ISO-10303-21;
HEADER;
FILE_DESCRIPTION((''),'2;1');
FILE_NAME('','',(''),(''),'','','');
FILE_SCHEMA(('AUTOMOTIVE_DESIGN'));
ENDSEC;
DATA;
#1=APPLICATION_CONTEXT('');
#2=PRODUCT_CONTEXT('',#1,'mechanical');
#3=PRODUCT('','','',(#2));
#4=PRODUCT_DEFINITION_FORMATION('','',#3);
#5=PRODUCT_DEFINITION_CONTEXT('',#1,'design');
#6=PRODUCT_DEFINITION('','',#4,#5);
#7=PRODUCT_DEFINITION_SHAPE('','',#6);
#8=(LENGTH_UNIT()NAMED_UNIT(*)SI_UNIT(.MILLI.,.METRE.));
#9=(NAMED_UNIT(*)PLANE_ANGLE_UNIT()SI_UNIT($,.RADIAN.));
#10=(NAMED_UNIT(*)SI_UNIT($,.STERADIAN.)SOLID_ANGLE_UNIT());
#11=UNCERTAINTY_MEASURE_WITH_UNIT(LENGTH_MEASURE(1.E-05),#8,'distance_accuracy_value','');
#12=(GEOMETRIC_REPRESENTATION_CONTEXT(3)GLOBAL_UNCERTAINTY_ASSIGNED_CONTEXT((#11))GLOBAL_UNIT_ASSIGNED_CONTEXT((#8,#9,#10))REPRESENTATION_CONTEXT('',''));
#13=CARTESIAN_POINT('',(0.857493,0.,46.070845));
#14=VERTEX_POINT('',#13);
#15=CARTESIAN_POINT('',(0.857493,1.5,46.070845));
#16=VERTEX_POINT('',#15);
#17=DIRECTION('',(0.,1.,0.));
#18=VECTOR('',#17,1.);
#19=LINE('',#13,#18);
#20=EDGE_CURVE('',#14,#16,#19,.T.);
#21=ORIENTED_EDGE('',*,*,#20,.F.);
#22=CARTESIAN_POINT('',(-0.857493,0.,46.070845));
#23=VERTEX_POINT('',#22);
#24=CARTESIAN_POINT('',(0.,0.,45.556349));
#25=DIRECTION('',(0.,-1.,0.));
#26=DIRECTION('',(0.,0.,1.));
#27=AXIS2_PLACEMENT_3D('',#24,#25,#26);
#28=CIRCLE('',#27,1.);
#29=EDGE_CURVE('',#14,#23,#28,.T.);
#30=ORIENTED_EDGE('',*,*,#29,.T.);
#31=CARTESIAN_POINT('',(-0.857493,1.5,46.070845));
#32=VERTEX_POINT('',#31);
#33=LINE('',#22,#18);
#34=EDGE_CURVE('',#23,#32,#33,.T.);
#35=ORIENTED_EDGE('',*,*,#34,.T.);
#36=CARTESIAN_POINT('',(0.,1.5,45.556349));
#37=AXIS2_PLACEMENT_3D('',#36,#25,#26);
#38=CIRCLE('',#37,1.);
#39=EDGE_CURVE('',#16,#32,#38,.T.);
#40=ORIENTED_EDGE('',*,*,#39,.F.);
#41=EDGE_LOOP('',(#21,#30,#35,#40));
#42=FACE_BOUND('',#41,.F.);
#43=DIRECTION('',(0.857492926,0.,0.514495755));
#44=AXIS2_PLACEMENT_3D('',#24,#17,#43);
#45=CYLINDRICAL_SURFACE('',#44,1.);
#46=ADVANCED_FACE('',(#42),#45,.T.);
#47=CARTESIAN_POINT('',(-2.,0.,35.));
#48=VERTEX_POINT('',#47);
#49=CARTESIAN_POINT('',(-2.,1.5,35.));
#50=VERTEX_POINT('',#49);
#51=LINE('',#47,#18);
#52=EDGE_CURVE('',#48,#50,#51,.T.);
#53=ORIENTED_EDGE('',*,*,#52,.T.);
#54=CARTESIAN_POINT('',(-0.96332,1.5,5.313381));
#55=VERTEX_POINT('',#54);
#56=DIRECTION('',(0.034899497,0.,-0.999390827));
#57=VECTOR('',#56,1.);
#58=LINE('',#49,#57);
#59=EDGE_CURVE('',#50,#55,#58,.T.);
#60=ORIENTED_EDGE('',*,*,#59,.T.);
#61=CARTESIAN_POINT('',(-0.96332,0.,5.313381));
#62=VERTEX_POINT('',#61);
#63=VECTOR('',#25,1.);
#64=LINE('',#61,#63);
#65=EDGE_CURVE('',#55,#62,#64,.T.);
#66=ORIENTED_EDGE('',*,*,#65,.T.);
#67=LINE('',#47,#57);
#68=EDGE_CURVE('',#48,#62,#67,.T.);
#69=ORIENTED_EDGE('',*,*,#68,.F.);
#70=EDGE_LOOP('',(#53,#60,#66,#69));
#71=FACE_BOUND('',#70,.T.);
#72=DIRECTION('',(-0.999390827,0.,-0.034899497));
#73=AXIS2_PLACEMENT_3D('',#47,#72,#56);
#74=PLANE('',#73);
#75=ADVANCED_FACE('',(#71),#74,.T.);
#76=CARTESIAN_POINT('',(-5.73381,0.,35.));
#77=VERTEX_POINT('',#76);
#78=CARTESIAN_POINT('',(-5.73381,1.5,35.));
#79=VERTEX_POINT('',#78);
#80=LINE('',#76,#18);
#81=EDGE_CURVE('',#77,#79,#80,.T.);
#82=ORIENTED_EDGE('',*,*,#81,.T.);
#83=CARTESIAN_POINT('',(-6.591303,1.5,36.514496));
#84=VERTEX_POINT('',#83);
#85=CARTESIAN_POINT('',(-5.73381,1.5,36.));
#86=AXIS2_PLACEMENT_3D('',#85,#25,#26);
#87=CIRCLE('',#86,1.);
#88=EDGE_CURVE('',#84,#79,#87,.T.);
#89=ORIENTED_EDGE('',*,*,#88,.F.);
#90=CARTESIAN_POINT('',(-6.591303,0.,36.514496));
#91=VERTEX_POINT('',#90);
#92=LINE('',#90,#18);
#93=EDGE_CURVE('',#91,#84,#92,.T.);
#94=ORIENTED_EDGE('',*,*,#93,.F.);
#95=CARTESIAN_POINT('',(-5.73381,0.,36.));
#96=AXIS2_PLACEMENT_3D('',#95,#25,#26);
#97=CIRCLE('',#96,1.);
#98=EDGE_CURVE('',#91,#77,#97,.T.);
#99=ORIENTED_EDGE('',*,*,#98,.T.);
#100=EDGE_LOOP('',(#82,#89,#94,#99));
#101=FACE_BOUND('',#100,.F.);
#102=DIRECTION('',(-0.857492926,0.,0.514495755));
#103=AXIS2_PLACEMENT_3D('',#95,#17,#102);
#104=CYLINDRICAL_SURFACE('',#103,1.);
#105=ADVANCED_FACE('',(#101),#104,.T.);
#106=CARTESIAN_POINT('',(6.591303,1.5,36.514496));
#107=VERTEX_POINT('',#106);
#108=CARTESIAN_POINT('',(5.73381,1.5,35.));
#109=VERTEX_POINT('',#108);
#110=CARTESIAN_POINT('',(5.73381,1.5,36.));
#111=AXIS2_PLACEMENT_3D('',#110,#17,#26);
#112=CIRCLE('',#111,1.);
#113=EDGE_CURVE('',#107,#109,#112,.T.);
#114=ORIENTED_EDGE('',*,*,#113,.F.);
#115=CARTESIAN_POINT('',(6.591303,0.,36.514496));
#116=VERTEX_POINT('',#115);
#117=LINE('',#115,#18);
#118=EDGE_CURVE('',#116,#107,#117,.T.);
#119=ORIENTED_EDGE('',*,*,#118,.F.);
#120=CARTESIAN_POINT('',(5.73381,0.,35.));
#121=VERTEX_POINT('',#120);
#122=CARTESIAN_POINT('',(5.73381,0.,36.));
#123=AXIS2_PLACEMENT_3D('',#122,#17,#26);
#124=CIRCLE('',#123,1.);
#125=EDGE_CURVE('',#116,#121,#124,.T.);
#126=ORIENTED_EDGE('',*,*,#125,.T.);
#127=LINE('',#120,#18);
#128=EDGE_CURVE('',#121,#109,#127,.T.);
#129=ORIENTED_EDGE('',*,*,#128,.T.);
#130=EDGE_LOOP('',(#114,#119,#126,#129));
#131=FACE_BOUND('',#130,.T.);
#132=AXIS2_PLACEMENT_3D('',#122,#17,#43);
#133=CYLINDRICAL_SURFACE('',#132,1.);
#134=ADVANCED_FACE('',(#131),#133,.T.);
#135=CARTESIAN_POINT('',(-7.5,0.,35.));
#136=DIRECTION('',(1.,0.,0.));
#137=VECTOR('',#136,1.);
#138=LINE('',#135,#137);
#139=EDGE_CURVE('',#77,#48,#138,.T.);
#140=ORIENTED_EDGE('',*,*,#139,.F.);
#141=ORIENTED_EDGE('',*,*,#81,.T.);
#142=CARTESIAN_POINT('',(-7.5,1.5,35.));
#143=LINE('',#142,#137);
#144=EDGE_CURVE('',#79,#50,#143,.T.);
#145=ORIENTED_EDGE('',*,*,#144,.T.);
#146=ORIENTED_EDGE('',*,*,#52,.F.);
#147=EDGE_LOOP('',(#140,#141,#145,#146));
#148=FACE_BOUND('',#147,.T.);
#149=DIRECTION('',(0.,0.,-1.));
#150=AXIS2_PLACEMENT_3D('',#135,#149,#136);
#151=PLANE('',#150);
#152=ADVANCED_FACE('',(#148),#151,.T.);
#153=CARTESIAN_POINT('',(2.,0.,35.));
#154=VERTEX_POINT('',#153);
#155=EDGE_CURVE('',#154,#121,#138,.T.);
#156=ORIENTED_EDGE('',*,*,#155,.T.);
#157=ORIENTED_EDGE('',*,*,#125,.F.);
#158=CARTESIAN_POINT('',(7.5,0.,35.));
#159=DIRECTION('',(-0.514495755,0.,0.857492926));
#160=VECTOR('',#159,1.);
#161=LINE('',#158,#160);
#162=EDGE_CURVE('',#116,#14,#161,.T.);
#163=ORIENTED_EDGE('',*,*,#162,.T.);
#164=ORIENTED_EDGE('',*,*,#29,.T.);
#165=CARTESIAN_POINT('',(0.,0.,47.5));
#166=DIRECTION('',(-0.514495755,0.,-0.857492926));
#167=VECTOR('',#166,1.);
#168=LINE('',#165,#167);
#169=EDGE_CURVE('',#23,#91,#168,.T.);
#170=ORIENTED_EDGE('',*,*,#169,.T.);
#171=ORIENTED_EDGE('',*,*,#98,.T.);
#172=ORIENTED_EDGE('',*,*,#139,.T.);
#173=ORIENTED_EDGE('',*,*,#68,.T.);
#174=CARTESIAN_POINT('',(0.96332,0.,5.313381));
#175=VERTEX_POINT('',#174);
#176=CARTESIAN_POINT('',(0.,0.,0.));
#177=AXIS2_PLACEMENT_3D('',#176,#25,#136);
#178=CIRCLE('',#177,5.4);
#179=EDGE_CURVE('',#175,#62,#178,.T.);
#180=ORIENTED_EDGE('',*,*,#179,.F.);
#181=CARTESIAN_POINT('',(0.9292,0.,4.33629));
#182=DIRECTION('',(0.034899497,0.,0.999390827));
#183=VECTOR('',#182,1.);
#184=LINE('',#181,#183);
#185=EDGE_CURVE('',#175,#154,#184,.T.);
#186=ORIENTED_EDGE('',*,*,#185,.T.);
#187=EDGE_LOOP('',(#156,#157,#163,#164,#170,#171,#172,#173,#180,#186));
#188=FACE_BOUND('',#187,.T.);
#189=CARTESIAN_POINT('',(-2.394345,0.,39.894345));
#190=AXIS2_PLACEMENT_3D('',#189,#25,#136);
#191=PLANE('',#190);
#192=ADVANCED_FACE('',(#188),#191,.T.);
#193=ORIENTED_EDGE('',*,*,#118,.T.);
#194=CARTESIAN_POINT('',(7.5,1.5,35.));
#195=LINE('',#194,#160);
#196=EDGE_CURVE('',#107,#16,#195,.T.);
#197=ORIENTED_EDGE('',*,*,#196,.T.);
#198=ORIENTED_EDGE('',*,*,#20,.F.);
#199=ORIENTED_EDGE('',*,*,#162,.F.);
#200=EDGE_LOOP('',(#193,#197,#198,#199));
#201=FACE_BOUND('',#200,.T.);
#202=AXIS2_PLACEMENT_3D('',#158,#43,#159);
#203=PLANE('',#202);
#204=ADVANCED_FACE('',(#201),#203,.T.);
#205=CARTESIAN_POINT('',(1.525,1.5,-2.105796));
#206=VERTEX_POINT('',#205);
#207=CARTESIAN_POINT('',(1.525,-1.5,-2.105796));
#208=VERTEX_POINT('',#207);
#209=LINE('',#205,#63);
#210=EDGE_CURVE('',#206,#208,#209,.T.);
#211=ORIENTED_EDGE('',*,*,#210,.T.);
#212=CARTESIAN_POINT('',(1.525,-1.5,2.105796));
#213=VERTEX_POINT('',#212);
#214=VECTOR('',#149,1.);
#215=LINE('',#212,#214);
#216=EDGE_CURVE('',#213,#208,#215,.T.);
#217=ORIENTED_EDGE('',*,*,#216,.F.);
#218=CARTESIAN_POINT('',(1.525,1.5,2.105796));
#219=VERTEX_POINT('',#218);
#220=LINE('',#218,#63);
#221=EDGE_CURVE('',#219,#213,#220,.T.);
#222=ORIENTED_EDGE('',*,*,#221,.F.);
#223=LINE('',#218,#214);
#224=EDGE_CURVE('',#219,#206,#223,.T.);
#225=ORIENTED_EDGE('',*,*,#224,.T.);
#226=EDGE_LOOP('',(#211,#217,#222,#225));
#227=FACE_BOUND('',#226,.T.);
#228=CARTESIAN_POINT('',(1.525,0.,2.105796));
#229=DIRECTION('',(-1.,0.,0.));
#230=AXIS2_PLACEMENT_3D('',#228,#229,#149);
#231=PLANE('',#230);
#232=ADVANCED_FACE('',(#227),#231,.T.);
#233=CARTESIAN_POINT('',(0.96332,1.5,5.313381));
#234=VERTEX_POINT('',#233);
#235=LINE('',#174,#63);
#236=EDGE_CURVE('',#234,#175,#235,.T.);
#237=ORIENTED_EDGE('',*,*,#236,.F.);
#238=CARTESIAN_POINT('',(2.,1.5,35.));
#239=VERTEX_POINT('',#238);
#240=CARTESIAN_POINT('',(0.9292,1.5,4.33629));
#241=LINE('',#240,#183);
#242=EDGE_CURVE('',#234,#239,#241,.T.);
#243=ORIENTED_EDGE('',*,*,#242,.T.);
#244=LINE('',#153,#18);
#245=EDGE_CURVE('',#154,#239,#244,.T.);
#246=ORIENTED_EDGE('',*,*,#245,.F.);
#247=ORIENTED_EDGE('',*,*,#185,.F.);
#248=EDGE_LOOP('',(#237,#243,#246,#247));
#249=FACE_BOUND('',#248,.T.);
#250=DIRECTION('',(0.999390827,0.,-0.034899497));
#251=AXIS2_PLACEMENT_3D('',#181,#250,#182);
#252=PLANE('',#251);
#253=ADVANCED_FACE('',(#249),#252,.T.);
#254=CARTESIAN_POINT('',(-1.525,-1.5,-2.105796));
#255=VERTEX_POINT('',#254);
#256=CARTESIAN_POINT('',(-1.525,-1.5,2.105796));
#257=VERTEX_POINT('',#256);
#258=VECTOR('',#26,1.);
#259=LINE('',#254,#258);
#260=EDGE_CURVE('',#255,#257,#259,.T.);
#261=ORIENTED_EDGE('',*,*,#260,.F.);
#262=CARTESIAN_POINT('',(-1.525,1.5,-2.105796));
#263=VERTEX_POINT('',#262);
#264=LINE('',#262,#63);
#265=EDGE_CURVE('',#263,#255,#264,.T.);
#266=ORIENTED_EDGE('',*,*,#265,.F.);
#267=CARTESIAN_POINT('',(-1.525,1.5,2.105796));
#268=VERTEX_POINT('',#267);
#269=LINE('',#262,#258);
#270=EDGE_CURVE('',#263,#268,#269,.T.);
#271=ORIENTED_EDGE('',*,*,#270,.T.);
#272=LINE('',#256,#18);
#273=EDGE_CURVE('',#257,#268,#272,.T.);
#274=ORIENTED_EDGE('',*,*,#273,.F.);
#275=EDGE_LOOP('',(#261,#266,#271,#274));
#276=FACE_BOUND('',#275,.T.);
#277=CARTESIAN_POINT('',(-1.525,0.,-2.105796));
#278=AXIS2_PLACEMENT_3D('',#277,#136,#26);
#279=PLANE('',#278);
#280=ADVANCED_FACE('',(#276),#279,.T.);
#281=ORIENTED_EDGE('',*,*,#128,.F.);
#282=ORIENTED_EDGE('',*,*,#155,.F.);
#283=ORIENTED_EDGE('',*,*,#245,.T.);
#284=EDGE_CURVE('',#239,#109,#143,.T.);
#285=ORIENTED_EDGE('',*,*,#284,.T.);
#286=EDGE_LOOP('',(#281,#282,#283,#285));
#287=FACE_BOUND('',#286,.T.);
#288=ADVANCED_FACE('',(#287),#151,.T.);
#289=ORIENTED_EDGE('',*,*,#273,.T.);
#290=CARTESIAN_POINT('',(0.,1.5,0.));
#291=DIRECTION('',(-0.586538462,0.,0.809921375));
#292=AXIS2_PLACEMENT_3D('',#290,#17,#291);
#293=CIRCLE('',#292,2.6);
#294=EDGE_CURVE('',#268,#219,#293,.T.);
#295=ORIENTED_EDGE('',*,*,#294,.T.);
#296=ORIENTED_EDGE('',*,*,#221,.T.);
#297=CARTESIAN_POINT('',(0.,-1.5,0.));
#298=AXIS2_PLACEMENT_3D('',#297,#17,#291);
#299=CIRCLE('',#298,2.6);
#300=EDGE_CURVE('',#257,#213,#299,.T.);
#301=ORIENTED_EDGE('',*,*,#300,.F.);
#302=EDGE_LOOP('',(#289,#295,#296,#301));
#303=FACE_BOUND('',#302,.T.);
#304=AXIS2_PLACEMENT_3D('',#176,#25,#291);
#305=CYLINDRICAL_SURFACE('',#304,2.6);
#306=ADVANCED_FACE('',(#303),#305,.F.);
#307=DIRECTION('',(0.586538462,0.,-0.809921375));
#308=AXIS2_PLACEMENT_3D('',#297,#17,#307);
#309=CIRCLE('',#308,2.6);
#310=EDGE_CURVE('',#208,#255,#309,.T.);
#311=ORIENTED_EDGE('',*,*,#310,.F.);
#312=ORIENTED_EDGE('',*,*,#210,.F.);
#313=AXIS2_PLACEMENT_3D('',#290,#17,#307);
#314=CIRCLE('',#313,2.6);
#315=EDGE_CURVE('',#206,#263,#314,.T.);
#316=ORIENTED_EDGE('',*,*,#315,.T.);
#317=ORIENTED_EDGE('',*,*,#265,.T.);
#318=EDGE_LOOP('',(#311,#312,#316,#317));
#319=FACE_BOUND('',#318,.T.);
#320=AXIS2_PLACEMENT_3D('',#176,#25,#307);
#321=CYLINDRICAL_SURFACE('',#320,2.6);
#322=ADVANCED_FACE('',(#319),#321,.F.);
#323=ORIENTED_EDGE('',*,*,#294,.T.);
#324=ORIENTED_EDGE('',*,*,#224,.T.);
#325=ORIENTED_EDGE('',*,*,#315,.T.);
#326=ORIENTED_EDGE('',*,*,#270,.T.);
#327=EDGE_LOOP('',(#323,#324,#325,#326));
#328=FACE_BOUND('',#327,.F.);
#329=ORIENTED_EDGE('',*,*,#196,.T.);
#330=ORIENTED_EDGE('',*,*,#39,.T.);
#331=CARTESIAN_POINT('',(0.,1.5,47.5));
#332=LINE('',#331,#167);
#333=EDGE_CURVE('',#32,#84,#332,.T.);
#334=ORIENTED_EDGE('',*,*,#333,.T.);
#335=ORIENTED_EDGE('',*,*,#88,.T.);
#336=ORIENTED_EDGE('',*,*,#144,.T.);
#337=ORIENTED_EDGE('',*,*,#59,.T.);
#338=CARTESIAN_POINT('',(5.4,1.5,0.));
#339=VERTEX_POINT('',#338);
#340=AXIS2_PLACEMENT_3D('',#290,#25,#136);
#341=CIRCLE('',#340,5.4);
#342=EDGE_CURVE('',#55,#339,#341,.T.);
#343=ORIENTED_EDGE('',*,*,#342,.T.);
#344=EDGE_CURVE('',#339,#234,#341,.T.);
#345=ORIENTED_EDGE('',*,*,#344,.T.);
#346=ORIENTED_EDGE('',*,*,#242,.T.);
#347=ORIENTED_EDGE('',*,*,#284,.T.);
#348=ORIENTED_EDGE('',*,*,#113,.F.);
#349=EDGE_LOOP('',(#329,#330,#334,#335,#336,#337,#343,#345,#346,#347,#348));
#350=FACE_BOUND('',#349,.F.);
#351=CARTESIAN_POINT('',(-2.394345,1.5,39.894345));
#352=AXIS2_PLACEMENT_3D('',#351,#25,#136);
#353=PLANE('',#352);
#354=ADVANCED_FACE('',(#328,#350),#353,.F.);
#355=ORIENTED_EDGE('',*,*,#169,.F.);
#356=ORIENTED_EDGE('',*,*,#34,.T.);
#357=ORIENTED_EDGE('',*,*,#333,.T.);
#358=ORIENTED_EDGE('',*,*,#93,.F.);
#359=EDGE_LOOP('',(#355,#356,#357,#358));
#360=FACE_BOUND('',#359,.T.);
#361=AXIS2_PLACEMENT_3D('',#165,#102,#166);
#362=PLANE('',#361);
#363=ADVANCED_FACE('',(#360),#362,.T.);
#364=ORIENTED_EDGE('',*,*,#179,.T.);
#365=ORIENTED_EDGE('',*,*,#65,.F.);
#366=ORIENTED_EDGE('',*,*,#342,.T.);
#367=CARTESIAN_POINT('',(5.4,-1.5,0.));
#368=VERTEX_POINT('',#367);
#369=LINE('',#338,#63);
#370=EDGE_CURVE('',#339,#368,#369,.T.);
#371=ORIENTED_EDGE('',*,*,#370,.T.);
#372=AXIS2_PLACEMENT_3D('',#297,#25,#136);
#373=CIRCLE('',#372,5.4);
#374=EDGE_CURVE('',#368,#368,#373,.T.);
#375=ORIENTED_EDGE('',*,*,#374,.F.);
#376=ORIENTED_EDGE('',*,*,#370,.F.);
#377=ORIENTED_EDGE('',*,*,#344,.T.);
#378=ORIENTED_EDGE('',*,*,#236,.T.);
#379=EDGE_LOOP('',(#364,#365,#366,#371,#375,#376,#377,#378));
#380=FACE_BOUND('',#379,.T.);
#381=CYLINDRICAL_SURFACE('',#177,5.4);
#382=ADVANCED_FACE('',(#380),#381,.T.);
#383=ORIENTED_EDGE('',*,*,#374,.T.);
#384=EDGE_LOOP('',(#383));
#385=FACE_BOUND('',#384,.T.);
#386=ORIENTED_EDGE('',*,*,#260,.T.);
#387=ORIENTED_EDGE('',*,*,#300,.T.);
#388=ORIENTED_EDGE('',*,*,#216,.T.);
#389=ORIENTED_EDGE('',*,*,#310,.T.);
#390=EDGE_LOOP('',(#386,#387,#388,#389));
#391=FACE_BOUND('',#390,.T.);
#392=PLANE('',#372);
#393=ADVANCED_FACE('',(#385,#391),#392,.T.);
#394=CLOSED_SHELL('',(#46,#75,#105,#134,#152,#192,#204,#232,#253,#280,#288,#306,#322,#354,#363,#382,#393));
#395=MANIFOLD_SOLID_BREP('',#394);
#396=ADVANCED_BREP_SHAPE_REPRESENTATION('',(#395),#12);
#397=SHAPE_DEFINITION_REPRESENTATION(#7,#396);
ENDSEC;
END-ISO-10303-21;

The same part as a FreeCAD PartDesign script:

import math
import FreeCAD as App
import Part
import Sketcher
Q = App.Units.Quantity


def edges_at(feature, points):
    """Names of the edges that pass closest to the given points."""
    edges = feature.Shape.Edges
    near = lambda p: min(range(len(edges)), key=lambda i: edges[i].distToShape(Part.Vertex(*p))[0])
    return sorted({f"Edge{near(p) + 1}" for p in points})


def add_polygon(sketch, points):
    """Adds a closed chain of lines whose ends are joined by coincident constraints."""
    first, n = sketch.GeometryCount, len(points)
    for a, b in zip(points, points[1:] + points[:1]):
        sketch.addGeometry(Part.LineSegment(App.Vector(*a, 0), App.Vector(*b, 0)), False)
    for i in range(n):
        sketch.addConstraint(Sketcher.Constraint("Coincident", first + i, 2, first + (i + 1) % n, 1))

doc = App.newDocument("Part")
body = doc.addObject("PartDesign::Body", "Body")

# Sketch on XZ plane
sketch1 = doc.addObject("Sketcher::SketchObject", "Sketch")
body.addObject(sketch1)
sketch1.AttachmentSupport = (doc.XZ_Plane, [""])
sketch1.MapMode = "FlatFace"
sketch1.addGeometry(Part.Circle(App.Vector(0, 0, 0), App.Vector(0, 0, 1), 5.4), False)
sketch1.addGeometry(Part.ArcOfCircle(Part.Circle(App.Vector(0, 0, 0), App.Vector(0, 0, 1), 2.6), math.radians(54.08825), math.radians(125.91175)), False)
sketch1.addGeometry(Part.LineSegment(App.Vector(1.525, 2.105796, 0), App.Vector(1.525, -2.105796, 0)), False)
sketch1.addGeometry(Part.ArcOfCircle(Part.Circle(App.Vector(0, 0, 0), App.Vector(0, 0, 1), 2.6), math.radians(-125.91175), math.radians(-54.08825)), False)
sketch1.addGeometry(Part.LineSegment(App.Vector(-1.525, -2.105796, 0), App.Vector(-1.525, 2.105796, 0)), False)
sketch1.addConstraint(Sketcher.Constraint("Coincident", 1, 1, 2, 1))
sketch1.addConstraint(Sketcher.Constraint("Coincident", 2, 2, 3, 2))
sketch1.addConstraint(Sketcher.Constraint("Coincident", 3, 1, 4, 1))
sketch1.addConstraint(Sketcher.Constraint("Coincident", 4, 2, 1, 2))
sketch1.addConstraint(Sketcher.Constraint("Vertical", 2))
sketch1.addConstraint(Sketcher.Constraint("Vertical", 4))
sketch1.addConstraint(Sketcher.Constraint("Coincident", 0, 3, -1, 1))
sketch1.addConstraint(Sketcher.Constraint("Coincident", 1, 3, -1, 1))
sketch1.addConstraint(Sketcher.Constraint("Coincident", 3, 3, -1, 1))
sketch1.addConstraint(Sketcher.Constraint("Equal", 1, 3))
sketch1.addConstraint(Sketcher.Constraint("Horizontal", 2, 2, 3, 1))
sketch1.addConstraint(Sketcher.Constraint("Diameter", 0, 10.8))
sketch1.addConstraint(Sketcher.Constraint("Radius", 1, 2.6))
sketch1.addConstraint(Sketcher.Constraint("DistanceX", 3, 1, 2, 2, 3.05))
pad1 = doc.addObject("PartDesign::Pad", "Pad")
body.addObject(pad1)
pad1.Profile = sketch1
pad1.Length = 3
pad1.Midplane = True

# Sketch on XZ plane
sketch2 = doc.addObject("Sketcher::SketchObject", "Sketch001")
body.addObject(sketch2)
sketch2.AttachmentSupport = (doc.XZ_Plane, [""])
sketch2.MapMode = "FlatFace"
add_polygon(sketch2, [(-0.9292, 4.33629), (0.9292, 4.33629), (2, 35), (-2, 35)])  # lines 0-3
sketch2.addConstraint(Sketcher.Constraint("Horizontal", 0))
sketch2.addConstraint(Sketcher.Constraint("Horizontal", 2))
sketch2.addConstraint(Sketcher.Constraint("Equal", 1, 3))
sketch2.addConstraint(Sketcher.Constraint("DistanceX", 2, 2, 2, 1, 4.0))
sketch2.addConstraint(Sketcher.Constraint("Angle", 1, Q("88 deg")))
sketch2.addConstraint(Sketcher.Constraint("DistanceX", -1, 1, 1, 2, 2.0))
sketch2.addConstraint(Sketcher.Constraint("DistanceY", -1, 1, 1, 2, 35.0))
sketch2.addConstraint(Sketcher.Constraint("DistanceX", 0, 1, 0, 2, 1.858399))
pad2 = doc.addObject("PartDesign::Pad", "Pad001")
body.addObject(pad2)
pad2.Profile = sketch2
pad2.Length = 1.5
pad2.Reversed = True

# Sketch on XZ plane
sketch3 = doc.addObject("Sketcher::SketchObject", "Sketch002")
body.addObject(sketch3)
sketch3.AttachmentSupport = (doc.XZ_Plane, [""])
sketch3.MapMode = "FlatFace"
add_polygon(sketch3, [(0, 47.5), (-7.5, 35), (7.5, 35)])  # lines 0-2
sketch3.addConstraint(Sketcher.Constraint("Horizontal", 1))
sketch3.addConstraint(Sketcher.Constraint("PointOnObject", 2, 2, -2))
sketch3.addConstraint(Sketcher.Constraint("Equal", 0, 2))
sketch3.addConstraint(Sketcher.Constraint("DistanceX", 1, 1, 1, 2, 15.0))
sketch3.addConstraint(Sketcher.Constraint("DistanceY", -1, 1, 0, 2, 35.0))
sketch3.addConstraint(Sketcher.Constraint("DistanceY", -1, 1, 2, 2, 47.5))
pad3 = doc.addObject("PartDesign::Pad", "Pad002")
body.addObject(pad3)
pad3.Profile = sketch3
pad3.Length = 1.5
pad3.Reversed = True
doc.recompute()

fillet = doc.addObject("PartDesign::Fillet", "Fillet")
body.addObject(fillet)
fillet.Base = (pad3, edges_at(pad3, [(7.5, 0.75, 35)]))
fillet.Radius = 1
doc.recompute()

fillet2 = doc.addObject("PartDesign::Fillet", "Fillet001")
body.addObject(fillet2)
fillet2.Base = (fillet, edges_at(fillet, [(0, 0.75, 47.5)]))
fillet2.Radius = 1
doc.recompute()

fillet3 = doc.addObject("PartDesign::Fillet", "Fillet002")
body.addObject(fillet3)
fillet3.Base = (fillet2, edges_at(fillet2, [(-7.5, 0.75, 35)]))
fillet3.Radius = 1

doc.recompute()
